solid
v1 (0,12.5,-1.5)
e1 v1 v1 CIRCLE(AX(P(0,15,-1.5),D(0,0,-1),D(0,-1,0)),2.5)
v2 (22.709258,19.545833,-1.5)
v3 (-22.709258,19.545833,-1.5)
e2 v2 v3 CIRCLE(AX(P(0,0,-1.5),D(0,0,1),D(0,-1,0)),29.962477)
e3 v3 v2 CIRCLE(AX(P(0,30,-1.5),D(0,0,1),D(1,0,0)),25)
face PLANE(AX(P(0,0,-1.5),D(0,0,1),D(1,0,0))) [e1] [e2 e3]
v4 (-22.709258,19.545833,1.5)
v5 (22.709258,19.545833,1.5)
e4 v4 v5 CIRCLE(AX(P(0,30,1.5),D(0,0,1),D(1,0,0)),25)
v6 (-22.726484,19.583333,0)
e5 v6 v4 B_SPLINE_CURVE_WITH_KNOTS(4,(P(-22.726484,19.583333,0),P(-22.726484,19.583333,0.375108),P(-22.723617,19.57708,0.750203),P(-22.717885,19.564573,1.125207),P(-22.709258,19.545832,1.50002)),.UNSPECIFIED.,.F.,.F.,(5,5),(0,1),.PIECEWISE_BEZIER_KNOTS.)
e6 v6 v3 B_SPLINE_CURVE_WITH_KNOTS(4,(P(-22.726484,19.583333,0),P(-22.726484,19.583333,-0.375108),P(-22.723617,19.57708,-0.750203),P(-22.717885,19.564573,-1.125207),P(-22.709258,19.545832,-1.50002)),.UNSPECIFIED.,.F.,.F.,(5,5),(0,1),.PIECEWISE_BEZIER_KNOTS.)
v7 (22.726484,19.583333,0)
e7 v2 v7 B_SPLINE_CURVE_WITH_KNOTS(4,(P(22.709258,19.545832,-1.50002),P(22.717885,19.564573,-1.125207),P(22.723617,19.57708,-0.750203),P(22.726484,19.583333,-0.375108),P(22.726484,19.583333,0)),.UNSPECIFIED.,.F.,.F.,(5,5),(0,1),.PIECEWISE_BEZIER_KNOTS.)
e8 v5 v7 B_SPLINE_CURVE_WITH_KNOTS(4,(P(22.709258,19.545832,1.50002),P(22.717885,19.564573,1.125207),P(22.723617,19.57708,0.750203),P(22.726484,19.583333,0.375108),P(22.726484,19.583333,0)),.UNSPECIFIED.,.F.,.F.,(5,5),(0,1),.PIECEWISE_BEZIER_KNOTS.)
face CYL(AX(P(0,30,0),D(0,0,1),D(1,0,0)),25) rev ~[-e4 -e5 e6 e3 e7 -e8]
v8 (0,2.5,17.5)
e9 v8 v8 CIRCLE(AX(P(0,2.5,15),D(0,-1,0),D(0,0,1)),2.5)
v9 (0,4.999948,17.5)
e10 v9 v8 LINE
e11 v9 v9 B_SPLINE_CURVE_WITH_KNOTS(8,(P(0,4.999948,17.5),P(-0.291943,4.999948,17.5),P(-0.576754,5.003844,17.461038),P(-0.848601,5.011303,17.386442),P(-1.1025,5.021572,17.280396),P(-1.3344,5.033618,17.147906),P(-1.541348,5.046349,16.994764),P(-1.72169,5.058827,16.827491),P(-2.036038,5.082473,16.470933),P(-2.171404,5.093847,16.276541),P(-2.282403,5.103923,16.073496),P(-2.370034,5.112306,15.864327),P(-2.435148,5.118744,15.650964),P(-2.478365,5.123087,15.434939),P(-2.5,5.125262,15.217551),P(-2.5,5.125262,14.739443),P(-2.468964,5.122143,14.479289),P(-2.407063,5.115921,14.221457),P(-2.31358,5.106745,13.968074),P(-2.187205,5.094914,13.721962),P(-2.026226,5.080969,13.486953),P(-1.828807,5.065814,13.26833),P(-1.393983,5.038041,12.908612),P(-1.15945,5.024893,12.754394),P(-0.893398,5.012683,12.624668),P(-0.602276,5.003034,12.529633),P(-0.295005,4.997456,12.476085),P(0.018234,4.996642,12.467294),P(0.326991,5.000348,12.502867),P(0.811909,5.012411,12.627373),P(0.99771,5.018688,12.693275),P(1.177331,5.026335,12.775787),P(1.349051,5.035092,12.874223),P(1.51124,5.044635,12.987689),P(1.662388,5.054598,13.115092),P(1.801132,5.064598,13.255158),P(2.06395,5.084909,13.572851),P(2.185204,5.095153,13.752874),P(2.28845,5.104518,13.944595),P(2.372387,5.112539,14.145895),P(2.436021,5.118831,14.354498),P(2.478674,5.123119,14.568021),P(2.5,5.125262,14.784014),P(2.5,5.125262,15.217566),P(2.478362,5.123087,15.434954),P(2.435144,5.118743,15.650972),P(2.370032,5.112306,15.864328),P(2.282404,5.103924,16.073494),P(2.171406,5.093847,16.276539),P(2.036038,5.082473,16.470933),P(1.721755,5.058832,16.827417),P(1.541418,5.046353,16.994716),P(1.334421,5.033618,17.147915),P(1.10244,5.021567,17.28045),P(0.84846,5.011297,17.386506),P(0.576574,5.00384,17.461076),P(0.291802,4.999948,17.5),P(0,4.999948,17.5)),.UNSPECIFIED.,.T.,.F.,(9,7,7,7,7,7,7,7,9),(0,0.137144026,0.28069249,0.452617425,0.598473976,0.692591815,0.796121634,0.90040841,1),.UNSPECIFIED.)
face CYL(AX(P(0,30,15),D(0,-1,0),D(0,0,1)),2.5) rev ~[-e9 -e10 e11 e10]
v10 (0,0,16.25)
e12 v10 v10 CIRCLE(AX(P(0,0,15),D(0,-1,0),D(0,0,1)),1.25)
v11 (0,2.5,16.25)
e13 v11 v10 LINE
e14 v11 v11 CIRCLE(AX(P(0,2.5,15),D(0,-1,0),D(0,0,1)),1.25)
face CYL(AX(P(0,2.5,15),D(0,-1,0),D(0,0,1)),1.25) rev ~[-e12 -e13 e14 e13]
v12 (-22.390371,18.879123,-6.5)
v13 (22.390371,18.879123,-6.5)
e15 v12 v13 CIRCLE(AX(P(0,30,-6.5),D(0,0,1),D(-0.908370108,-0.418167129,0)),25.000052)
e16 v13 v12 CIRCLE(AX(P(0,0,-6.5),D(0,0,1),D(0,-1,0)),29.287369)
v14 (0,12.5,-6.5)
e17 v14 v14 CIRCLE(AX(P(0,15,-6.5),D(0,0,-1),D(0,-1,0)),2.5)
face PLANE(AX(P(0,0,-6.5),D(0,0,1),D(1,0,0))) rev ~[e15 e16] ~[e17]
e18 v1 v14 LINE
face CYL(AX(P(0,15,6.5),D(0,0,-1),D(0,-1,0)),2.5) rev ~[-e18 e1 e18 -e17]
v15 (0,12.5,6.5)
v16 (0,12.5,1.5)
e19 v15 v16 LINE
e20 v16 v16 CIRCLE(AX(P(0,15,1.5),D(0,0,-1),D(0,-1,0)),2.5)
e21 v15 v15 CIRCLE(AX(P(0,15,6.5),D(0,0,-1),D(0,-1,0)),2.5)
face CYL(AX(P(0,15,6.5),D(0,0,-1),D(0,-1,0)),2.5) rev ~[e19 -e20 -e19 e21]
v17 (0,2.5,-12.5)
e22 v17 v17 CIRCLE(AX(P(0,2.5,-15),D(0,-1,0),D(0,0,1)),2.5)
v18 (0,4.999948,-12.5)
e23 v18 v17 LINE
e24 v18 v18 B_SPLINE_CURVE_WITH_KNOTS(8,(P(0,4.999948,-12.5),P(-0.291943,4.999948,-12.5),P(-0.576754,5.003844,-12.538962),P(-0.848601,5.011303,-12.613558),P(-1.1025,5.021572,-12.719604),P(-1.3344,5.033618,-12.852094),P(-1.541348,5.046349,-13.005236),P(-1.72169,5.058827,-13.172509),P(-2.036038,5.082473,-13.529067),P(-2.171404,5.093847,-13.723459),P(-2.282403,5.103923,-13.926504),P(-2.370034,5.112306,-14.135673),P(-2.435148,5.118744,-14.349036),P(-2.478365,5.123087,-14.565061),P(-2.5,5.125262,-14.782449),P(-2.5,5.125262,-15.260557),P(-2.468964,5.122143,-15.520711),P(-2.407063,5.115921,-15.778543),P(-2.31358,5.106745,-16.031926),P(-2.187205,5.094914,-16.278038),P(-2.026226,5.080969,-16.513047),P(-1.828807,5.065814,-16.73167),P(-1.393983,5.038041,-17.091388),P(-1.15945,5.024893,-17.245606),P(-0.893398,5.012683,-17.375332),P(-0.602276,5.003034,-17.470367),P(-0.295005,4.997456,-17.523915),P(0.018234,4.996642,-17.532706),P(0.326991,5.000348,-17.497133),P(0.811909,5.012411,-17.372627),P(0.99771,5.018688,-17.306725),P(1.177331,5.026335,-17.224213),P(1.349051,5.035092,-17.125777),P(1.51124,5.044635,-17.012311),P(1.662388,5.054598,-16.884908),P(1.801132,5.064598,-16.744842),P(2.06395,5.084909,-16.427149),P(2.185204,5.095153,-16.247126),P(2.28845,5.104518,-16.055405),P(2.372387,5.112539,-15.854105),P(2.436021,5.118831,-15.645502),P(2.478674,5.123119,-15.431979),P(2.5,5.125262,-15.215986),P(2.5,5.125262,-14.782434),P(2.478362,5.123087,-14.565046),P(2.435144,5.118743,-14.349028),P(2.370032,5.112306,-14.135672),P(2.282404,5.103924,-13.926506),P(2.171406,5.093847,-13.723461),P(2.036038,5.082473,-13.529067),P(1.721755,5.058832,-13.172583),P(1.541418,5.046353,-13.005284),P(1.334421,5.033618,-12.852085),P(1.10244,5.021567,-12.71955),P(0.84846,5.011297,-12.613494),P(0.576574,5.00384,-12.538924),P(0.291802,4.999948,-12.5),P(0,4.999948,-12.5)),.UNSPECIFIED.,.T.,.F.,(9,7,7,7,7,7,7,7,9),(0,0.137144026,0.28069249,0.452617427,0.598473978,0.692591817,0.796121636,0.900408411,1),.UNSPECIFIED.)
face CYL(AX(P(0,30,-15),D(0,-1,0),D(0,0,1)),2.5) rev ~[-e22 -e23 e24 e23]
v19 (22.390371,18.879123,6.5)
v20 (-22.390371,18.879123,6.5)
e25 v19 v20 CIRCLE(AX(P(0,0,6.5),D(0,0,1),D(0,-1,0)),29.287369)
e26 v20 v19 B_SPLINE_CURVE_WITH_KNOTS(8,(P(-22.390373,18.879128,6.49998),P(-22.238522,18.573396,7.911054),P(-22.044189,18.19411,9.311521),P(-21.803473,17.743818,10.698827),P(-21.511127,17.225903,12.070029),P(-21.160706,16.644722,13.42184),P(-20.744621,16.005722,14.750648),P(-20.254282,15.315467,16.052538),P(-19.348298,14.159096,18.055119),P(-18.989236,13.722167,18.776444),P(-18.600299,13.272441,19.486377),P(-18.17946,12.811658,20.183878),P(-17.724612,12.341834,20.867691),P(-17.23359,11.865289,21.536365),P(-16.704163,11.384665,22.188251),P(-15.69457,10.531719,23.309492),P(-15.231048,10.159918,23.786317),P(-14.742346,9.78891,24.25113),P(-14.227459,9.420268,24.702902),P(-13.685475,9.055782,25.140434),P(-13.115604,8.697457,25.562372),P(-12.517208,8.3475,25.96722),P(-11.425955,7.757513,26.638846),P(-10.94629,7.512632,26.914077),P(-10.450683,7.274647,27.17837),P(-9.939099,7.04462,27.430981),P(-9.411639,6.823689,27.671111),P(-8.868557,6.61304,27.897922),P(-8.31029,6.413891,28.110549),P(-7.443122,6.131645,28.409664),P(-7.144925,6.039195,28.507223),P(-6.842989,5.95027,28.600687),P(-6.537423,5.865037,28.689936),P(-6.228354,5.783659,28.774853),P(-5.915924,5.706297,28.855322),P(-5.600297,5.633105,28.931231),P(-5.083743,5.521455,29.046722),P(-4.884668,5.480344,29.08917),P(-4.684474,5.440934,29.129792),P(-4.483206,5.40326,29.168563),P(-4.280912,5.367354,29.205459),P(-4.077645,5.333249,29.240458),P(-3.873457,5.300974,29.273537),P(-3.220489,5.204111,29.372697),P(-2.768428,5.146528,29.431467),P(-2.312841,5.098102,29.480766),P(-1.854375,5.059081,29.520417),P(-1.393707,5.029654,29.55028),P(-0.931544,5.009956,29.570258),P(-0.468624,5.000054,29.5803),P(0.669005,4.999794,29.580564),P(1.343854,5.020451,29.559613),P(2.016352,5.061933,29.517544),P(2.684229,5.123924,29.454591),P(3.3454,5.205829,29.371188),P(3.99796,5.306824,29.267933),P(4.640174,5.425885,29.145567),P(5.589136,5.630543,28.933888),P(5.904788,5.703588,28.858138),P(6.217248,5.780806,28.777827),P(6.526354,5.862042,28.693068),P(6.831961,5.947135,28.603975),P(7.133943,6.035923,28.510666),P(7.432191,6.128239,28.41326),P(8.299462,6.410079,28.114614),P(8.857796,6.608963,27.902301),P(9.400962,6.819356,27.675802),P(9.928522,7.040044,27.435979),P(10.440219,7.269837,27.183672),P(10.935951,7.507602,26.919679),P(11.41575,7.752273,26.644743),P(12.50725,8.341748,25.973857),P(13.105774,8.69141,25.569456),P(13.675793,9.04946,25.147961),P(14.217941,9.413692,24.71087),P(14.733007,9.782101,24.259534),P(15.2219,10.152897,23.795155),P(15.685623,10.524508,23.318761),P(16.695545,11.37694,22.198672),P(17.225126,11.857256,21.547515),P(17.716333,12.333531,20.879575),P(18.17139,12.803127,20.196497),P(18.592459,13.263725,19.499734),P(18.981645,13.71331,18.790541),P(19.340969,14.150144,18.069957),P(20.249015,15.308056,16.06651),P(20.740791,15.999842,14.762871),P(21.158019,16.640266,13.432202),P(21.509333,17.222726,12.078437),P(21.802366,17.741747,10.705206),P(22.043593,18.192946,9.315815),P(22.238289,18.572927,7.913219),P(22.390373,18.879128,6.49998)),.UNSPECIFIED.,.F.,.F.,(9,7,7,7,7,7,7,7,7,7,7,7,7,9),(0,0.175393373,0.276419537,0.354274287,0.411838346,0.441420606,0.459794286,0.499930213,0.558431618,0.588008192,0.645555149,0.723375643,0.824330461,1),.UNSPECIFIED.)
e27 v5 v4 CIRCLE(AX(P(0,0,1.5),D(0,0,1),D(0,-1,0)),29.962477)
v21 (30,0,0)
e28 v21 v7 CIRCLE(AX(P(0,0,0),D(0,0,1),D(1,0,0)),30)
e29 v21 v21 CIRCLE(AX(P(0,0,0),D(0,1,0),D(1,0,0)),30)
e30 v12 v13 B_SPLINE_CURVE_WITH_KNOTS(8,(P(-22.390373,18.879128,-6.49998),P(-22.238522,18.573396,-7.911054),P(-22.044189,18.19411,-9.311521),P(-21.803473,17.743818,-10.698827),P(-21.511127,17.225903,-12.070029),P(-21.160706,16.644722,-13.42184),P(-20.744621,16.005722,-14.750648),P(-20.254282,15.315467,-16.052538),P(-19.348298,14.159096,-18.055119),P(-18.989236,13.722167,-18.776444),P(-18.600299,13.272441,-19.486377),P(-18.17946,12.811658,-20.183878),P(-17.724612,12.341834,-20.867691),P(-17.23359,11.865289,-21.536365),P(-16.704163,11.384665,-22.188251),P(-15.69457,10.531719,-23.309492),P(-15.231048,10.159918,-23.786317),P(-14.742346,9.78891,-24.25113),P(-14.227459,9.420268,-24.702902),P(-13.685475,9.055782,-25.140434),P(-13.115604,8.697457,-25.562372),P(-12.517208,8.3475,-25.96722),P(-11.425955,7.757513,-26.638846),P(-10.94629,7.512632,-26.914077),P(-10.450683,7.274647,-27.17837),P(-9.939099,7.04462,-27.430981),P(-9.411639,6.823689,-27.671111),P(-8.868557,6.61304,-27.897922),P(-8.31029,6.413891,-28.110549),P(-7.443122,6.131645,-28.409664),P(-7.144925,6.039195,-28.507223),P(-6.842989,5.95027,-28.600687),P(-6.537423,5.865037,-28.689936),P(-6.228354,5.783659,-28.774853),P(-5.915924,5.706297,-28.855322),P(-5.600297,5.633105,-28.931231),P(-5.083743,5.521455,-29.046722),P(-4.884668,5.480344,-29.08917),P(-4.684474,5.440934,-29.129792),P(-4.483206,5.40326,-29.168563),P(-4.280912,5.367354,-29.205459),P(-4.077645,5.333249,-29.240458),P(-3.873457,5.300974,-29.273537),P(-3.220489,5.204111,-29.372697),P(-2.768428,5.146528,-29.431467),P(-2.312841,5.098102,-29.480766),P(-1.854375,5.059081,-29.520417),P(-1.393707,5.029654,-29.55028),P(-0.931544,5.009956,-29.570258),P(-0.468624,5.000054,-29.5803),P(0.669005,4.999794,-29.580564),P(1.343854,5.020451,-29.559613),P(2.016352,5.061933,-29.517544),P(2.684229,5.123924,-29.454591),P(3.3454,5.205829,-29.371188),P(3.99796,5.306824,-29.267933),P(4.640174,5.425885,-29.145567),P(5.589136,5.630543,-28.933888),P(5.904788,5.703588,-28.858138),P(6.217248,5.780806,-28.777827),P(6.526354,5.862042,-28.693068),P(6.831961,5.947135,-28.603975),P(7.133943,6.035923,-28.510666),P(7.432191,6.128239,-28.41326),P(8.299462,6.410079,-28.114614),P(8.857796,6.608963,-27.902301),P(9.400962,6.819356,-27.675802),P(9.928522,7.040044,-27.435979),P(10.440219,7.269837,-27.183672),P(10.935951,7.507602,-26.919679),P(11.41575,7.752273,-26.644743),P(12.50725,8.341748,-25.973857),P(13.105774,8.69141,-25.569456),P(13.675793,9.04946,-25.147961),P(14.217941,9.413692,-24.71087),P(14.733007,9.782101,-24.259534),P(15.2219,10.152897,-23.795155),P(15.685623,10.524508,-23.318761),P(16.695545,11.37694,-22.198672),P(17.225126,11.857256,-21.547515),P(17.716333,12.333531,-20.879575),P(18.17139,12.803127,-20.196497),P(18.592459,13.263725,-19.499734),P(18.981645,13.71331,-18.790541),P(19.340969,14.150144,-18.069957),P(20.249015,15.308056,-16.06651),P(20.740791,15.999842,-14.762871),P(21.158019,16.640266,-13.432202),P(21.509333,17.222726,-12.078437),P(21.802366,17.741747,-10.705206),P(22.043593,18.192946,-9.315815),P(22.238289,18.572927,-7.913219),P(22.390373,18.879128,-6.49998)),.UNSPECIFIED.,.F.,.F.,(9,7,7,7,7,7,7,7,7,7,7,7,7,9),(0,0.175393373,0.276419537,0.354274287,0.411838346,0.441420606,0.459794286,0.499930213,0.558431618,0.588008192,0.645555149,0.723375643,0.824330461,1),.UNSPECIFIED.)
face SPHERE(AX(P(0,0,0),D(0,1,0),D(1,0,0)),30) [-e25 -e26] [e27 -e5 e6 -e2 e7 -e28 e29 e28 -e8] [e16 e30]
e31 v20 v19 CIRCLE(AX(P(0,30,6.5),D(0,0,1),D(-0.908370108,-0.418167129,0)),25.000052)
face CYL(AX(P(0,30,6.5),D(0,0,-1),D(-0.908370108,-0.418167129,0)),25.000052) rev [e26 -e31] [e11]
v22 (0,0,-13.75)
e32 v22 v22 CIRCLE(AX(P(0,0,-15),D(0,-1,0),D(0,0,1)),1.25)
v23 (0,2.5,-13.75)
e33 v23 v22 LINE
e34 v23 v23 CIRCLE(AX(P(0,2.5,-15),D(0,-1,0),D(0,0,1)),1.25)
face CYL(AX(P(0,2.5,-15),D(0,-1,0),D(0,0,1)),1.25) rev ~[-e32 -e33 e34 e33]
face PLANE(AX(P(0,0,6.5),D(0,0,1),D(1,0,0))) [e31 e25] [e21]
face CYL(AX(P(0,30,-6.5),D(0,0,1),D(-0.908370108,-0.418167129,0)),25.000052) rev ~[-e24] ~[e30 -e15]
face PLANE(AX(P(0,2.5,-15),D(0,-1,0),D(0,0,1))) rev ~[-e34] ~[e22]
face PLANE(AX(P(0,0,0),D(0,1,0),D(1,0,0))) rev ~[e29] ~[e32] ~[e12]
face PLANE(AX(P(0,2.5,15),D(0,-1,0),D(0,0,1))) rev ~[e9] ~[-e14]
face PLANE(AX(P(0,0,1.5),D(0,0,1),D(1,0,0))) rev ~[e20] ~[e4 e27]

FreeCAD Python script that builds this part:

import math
import FreeCAD as App
import Part
import Sketcher
Q = App.Units.Quantity

doc = App.newDocument("Part")
body = doc.addObject("PartDesign::Body", "Body")

sketch1 = body.newObject("Sketcher::SketchObject", "Sketch")
sketch1.AttachmentSupport = (doc.getObject("XY_Plane"), [""])
sketch1.MapMode = "FlatFace"
sketch1.addGeometry([
    Part.LineSegment(App.Vector(0, 0, 0), App.Vector(30, 0, 0)),
    Part.ArcOfCircle(Part.Circle(App.Vector(0, 0, 0), App.Vector(0, 0, 1), 30), math.radians(0), math.radians(90)),
    Part.LineSegment(App.Vector(0, 30, 0), App.Vector(0, 0, 0)),
], False)
sketch1.addConstraint([
    Sketcher.Constraint("Coincident", 0, 2, 1, 1),
    Sketcher.Constraint("Coincident", 1, 2, 2, 1),
    Sketcher.Constraint("Coincident", 2, 2, 0, 1),
    Sketcher.Constraint("Horizontal", 0),
    Sketcher.Constraint("Vertical", 2),
    Sketcher.Constraint("Coincident", 1, 3, -1, 1),
    Sketcher.Constraint("Coincident", 2, 2, -1, 1),
    Sketcher.Constraint("Radius", 1, Q("30 mm")),
])
revolution = body.newObject("PartDesign::Revolution", "Revolution")
revolution.Profile = sketch1
revolution.ReferenceAxis = (sketch1, ["V_Axis"])
revolution.Angle = 360

sketch2 = body.newObject("Sketcher::SketchObject", "Sketch001")
sketch2.AttachmentSupport = (doc.getObject("XY_Plane"), [""])
sketch2.MapMode = "FlatFace"
sketch2.addGeometry(Part.Circle(App.Vector(0, 30, 0), App.Vector(0, 0, 1), 25), False)
sketch2.addConstraint([
    Sketcher.Constraint("PointOnObject", 0, 3, -2),
    Sketcher.Constraint("Diameter", 0, Q("50 mm")),
    Sketcher.Constraint("DistanceY", -1, 1, 0, 3, Q("30 mm")),
])
pocket1 = body.newObject("PartDesign::Pocket", "Pocket")
pocket1.Profile = sketch2
pocket1.Length = 3
pocket1.Midplane = True

sketch3 = body.newObject("Sketcher::SketchObject", "Sketch002")
sketch3.AttachmentSupport = (doc.getObject("XY_Plane"), [""])
sketch3.MapMode = "FlatFace"
sketch3.AttachmentOffset = App.Placement(App.Vector(0, 0, 6.5), App.Rotation())
sketch3.addGeometry([
    Part.ArcOfCircle(Part.Circle(App.Vector(0, 30, 0), App.Vector(0, 0, 1), 25), math.radians(-155), math.radians(-25)),
    Part.ArcOfCircle(Part.Circle(App.Vector(0, 0, 0), App.Vector(0, 0, 1), 30), math.radians(41), math.radians(139)),
], False)
sketch3.addConstraint([
    Sketcher.Constraint("Coincident", 0, 1, 1, 2),
    Sketcher.Constraint("Coincident", 1, 1, 0, 2),
    Sketcher.Constraint("Coincident", 1, 3, -1, 1),
    Sketcher.Constraint("PointOnObject", 0, 3, -2),
    Sketcher.Constraint("Radius", 0, Q("25 mm")),
    Sketcher.Constraint("DistanceY", -1, 1, 0, 3, Q("30 mm")),
    Sketcher.Constraint("Radius", 1, Q("29.9625 mm")),
])
pocket2 = body.newObject("PartDesign::Pocket", "Pocket001")
pocket2.Profile = sketch3
pocket2.Type = "ThroughAll"
pocket2.Reversed = True

sketch4 = body.newObject("Sketcher::SketchObject", "Sketch003")
sketch4.AttachmentSupport = (doc.getObject("XY_Plane"), [""])
sketch4.MapMode = "FlatFace"
sketch4.AttachmentOffset = App.Placement(App.Vector(0, 0, -6.5), App.Rotation())
sketch4.addGeometry([
    Part.ArcOfCircle(Part.Circle(App.Vector(0, 30, 0), App.Vector(0, 0, 1), 25), math.radians(-155), math.radians(-25)),
    Part.ArcOfCircle(Part.Circle(App.Vector(0, 0, 0), App.Vector(0, 0, 1), 30), math.radians(41), math.radians(139)),
], False)
sketch4.addConstraint([
    Sketcher.Constraint("Coincident", 0, 1, 1, 2),
    Sketcher.Constraint("Coincident", 1, 1, 0, 2),
    Sketcher.Constraint("Coincident", 1, 3, -1, 1),
    Sketcher.Constraint("PointOnObject", 0, 3, -2),
    Sketcher.Constraint("Radius", 0, Q("25 mm")),
    Sketcher.Constraint("DistanceY", -1, 1, 0, 3, Q("30 mm")),
    Sketcher.Constraint("Radius", 1, Q("29.9625 mm")),
])
pocket3 = body.newObject("PartDesign::Pocket", "Pocket002")
pocket3.Profile = sketch4
pocket3.Type = "ThroughAll"

sketch5 = body.newObject("Sketcher::SketchObject", "Sketch004")
sketch5.AttachmentSupport = (doc.getObject("XY_Plane"), [""])
sketch5.MapMode = "FlatFace"
sketch5.AttachmentOffset = App.Placement(App.Vector(0, 0, 6.5), App.Rotation())
sketch5.addGeometry(Part.Circle(App.Vector(0, 15, 0), App.Vector(0, 0, 1), 2.5), False)
sketch5.addConstraint([
    Sketcher.Constraint("PointOnObject", 0, 3, -2),
    Sketcher.Constraint("Diameter", 0, Q("5 mm")),
    Sketcher.Constraint("DistanceY", -1, 1, 0, 3, Q("15 mm")),
])
doc.recompute()
hole = body.newObject("PartDesign::Hole", "Hole")
hole.Profile = sketch5
hole.ThreadType = "None"
hole.Diameter = 5
hole.DepthType = "ThroughAll"

sketch6 = body.newObject("Sketcher::SketchObject", "Sketch005")
sketch6.AttachmentSupport = (doc.getObject("XZ_Plane"), [""])
sketch6.MapMode = "FlatFace"
sketch6.AttachmentOffset = App.Placement(App.Vector(0, 0, -30), App.Rotation())
sketch6.addGeometry([
    Part.Circle(App.Vector(0, -15, 0), App.Vector(0, 0, 1), 1.2),
    Part.Circle(App.Vector(0, 15, 0), App.Vector(0, 0, 1), 1.2),
], False)
sketch6.addConstraint([
    Sketcher.Constraint("Equal", 0, 1),
    Sketcher.Constraint("Symmetric", 0, 3, 1, 3, -1, 1),
    Sketcher.Constraint("PointOnObject", 0, 3, -2),
    Sketcher.Constraint("Diameter", 0, Q("2.5 mm")),
    Sketcher.Constraint("DistanceY", 0, 3, -1, 1, Q("15 mm")),
])
doc.recompute()
hole2 = body.newObject("PartDesign::Hole", "Hole001")
hole2.Profile = sketch6
hole2.ThreadType = "None"
hole2.Diameter = 2.5
hole2.DepthType = "ThroughAll"
hole2.HoleCutType = "Counterbore"
hole2.HoleCutDiameter = 5
hole2.HoleCutDepth = 27.5
hole2.Reversed = True

doc.recompute()
